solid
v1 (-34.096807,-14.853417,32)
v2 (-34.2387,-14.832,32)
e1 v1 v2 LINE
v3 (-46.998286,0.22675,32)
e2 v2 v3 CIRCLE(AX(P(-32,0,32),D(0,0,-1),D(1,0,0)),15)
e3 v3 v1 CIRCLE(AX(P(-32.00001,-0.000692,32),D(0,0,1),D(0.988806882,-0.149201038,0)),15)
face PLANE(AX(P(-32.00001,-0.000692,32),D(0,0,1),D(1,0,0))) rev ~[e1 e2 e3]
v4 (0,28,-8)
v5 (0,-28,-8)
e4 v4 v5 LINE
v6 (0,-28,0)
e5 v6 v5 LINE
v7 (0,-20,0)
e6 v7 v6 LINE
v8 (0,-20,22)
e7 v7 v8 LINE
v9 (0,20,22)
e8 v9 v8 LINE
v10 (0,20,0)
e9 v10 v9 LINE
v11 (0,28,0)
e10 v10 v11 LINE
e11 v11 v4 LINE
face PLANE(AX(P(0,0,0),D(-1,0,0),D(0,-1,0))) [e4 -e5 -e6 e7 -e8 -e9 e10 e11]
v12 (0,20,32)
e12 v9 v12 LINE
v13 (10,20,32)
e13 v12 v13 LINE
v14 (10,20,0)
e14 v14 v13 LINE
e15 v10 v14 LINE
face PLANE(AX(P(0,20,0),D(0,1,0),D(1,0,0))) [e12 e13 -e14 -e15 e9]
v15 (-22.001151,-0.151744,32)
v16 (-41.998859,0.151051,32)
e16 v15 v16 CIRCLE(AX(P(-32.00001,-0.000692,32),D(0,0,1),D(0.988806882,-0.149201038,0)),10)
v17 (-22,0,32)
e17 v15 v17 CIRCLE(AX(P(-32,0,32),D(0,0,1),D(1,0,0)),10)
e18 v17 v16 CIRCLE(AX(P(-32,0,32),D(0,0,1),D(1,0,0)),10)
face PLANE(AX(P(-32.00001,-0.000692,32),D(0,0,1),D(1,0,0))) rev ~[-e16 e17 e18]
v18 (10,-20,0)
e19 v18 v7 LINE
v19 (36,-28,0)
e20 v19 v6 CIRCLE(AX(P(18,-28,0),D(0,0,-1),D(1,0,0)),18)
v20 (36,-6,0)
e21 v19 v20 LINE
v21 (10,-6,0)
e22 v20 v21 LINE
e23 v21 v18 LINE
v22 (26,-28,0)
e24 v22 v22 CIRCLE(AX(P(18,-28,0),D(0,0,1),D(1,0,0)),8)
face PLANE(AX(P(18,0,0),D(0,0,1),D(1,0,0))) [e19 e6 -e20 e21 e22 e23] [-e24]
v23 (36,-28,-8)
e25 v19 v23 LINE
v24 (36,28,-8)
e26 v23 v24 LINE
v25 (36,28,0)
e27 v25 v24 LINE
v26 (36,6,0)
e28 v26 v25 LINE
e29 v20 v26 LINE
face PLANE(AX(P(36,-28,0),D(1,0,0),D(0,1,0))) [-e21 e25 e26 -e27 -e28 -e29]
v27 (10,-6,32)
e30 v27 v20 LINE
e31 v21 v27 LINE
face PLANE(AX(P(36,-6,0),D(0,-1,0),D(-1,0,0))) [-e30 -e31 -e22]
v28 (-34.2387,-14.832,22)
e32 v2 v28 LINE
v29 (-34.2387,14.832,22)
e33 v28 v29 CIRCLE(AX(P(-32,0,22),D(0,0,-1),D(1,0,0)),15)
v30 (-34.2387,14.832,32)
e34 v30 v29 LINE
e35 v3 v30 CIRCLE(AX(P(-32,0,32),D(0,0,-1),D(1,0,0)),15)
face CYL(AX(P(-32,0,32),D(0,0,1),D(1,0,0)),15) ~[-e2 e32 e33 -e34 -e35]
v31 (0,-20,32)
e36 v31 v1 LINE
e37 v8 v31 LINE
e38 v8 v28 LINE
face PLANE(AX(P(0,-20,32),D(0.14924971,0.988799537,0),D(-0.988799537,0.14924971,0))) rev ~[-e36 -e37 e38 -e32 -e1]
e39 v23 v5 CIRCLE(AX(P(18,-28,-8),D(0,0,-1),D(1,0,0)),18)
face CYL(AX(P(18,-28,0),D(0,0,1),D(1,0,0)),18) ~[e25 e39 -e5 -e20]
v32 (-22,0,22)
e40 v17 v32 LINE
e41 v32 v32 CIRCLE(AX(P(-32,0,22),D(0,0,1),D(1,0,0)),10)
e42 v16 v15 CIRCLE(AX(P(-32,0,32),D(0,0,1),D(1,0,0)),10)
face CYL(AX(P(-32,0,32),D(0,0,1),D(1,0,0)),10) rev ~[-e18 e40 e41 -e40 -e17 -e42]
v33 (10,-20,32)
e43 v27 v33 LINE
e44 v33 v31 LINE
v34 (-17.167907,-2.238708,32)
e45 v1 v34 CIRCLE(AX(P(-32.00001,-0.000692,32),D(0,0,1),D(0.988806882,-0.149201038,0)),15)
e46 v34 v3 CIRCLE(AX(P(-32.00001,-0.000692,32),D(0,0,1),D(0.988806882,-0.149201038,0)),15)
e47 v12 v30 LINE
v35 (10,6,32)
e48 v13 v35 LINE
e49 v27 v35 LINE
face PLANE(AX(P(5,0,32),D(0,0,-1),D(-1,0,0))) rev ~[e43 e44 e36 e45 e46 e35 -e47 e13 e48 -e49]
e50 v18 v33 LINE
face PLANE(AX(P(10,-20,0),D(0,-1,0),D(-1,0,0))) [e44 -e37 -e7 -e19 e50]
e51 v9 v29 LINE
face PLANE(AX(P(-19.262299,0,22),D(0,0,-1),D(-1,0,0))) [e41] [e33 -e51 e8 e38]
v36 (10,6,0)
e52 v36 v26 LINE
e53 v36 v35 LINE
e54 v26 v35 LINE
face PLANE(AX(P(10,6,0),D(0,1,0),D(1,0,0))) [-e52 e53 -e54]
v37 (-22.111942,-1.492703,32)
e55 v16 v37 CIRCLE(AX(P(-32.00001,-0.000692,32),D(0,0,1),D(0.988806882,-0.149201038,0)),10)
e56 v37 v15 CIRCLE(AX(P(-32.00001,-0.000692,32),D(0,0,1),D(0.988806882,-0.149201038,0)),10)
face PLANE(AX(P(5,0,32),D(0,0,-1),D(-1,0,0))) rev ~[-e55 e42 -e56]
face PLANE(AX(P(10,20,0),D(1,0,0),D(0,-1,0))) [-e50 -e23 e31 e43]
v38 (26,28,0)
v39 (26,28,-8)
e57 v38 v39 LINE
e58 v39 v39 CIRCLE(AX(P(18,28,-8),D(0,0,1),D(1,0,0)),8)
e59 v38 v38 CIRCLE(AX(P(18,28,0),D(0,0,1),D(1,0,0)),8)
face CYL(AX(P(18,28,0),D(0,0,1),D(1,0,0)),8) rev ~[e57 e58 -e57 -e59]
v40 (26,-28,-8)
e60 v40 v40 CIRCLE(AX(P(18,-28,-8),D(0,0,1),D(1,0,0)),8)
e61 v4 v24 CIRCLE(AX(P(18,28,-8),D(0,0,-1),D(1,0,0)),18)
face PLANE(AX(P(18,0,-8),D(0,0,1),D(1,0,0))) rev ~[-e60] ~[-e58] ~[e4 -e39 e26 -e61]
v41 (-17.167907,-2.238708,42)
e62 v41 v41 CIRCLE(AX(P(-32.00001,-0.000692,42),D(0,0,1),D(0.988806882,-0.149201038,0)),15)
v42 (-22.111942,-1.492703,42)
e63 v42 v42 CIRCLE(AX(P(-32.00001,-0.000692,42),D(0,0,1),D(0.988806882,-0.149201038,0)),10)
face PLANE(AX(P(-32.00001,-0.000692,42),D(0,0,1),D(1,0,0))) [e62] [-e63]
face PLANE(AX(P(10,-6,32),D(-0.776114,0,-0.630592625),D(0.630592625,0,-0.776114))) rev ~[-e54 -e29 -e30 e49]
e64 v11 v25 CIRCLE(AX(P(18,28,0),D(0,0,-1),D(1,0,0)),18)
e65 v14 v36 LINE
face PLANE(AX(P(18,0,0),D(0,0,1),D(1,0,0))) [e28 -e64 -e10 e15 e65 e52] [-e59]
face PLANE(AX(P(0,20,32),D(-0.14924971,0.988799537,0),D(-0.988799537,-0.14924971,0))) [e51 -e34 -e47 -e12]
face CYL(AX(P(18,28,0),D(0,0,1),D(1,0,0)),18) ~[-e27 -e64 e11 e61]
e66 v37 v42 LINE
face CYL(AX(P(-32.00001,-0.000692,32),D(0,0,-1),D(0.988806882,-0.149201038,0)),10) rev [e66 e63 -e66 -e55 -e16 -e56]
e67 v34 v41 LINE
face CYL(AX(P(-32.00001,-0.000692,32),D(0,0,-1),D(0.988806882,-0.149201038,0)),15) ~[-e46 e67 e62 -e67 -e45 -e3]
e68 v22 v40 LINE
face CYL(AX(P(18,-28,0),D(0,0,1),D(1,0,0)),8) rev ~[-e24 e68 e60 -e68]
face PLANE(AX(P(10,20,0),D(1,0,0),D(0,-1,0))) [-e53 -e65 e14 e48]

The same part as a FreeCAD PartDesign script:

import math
import FreeCAD as App
import Part
import Sketcher

V = App.Vector
Q = App.Units.Quantity

doc = App.newDocument("Part")
body = doc.addObject("PartDesign::Body", "Body")

# Sketch on XY plane
sketch1 = doc.addObject("Sketcher::SketchObject", "Sketch")
body.addObject(sketch1)
sketch1.AttachmentSupport = (doc.XY_Plane, [""])
sketch1.MapMode = "FlatFace"
sketch1.addGeometry([
    Part.LineSegment(V(0, 28, 0), V(0, -28, 0)),  # 0
    Part.ArcOfCircle(Part.Circle(V(18, -28, 0), V(0, 0, 1), 18), math.radians(180), math.radians(360)),  # 1
    Part.LineSegment(V(36, -28, 0), V(36, 28, 0)),  # 2
    Part.ArcOfCircle(Part.Circle(V(18, 28, 0), V(0, 0, 1), 18), math.radians(0), math.radians(180)),  # 3
    Part.Circle(V(18, -28, 0), V(0, 0, 1), 8),  # 4
    Part.Circle(V(18, 28, 0), V(0, 0, 1), 8),  # 5
], False)
sketch1.addConstraint([
    Sketcher.Constraint("Tangent", 0, 2, 1, 1),
    Sketcher.Constraint("Tangent", 1, 2, 2, 1),
    Sketcher.Constraint("Tangent", 2, 2, 3, 1),
    Sketcher.Constraint("Tangent", 3, 2, 0, 1),
    Sketcher.Constraint("Vertical", 0),
    Sketcher.Constraint("Vertical", 2),
    Sketcher.Constraint("Coincident", 4, 3, 1, 3),
    Sketcher.Constraint("Coincident", 5, 3, 3, 3),
    Sketcher.Constraint("Equal", 4, 5),
    Sketcher.Constraint("Symmetric", 0, 2, 3, 2, -1, 1),
    Sketcher.Constraint("Diameter", 4, Q("16 mm")),
    Sketcher.Constraint("Radius", 1, Q("18 mm")),
    Sketcher.Constraint("DistanceY", 0, 2, 0, 1, Q("56 mm")),
])
pad1 = doc.addObject("PartDesign::Pad", "Pad")
body.addObject(pad1)
pad1.Profile = sketch1
pad1.Length = 8
pad1.Reversed = True

# Sketch on XY plane
sketch2 = doc.addObject("Sketcher::SketchObject", "Sketch001")
body.addObject(sketch2)
sketch2.AttachmentSupport = (doc.XY_Plane, [""])
sketch2.MapMode = "FlatFace"
sketch2.addGeometry([
    Part.LineSegment(V(0, -20, 0), V(10, -20, 0)),  # 0
    Part.LineSegment(V(10, -20, 0), V(10, -6, 0)),  # 1
    Part.LineSegment(V(10, -6, 0), V(36, -6, 0)),  # 2
    Part.LineSegment(V(36, -6, 0), V(36, 6, 0)),  # 3
    Part.LineSegment(V(36, 6, 0), V(10, 6, 0)),  # 4
    Part.LineSegment(V(10, 6, 0), V(10, 20, 0)),  # 5
    Part.LineSegment(V(10, 20, 0), V(0, 20, 0)),  # 6
    Part.LineSegment(V(0, 20, 0), V(0, -20, 0)),  # 7
], False)
sketch2.addConstraint([
    Sketcher.Constraint("Coincident", 0, 2, 1, 1),
    Sketcher.Constraint("Coincident", 1, 2, 2, 1),
    Sketcher.Constraint("Coincident", 2, 2, 3, 1),
    Sketcher.Constraint("Coincident", 3, 2, 4, 1),
    Sketcher.Constraint("Coincident", 4, 2, 5, 1),
    Sketcher.Constraint("Coincident", 5, 2, 6, 1),
    Sketcher.Constraint("Coincident", 6, 2, 7, 1),
    Sketcher.Constraint("Coincident", 7, 2, 0, 1),
    Sketcher.Constraint("Horizontal", 0),
    Sketcher.Constraint("Vertical", 1),
    Sketcher.Constraint("Horizontal", 2),
    Sketcher.Constraint("Vertical", 3),
    Sketcher.Constraint("Horizontal", 4),
    Sketcher.Constraint("Vertical", 5),
    Sketcher.Constraint("Horizontal", 6),
    Sketcher.Constraint("Vertical", 7),
    Sketcher.Constraint("Symmetric", 6, 2, 7, 2, -1, 1),
    Sketcher.Constraint("Symmetric", 1, 2, 4, 2, -1),
    Sketcher.Constraint("DistanceX", 0, 1, 0, 2, Q("10 mm")),
    Sketcher.Constraint("DistanceX", 2, 1, 2, 2, Q("26 mm")),
    Sketcher.Constraint("DistanceY", 1, 1, 1, 2, Q("14 mm")),
    Sketcher.Constraint("DistanceY", 3, 1, 3, 2, Q("12 mm")),
])
pad2 = doc.addObject("PartDesign::Pad", "Pad001")
body.addObject(pad2)
pad2.Profile = sketch2
pad2.Length = 32

# Sketch on XZ plane
sketch3 = doc.addObject("Sketcher::SketchObject", "Sketch002")
body.addObject(sketch3)
sketch3.AttachmentSupport = (doc.XZ_Plane, [""])
sketch3.MapMode = "FlatFace"
sketch3.AttachmentOffset = App.Placement(V(0, 0, 6), App.Rotation())
sketch3.addGeometry([
    Part.LineSegment(V(36, 32, 0), V(10, 32, 0)),
    Part.LineSegment(V(10, 32, 0), V(36, 0, 0)),
    Part.LineSegment(V(36, 0, 0), V(36, 32, 0)),
], False)
sketch3.addConstraint([
    Sketcher.Constraint("Coincident", 0, 2, 1, 1),
    Sketcher.Constraint("Coincident", 1, 2, 2, 1),
    Sketcher.Constraint("Coincident", 2, 2, 0, 1),
    Sketcher.Constraint("Horizontal", 0),
    Sketcher.Constraint("Vertical", 2),
    Sketcher.Constraint("PointOnObject", 1, 2, -1),
    Sketcher.Constraint("DistanceX", 0, 2, 0, 1, Q("26 mm")),
    Sketcher.Constraint("DistanceY", 2, 1, 2, 2, Q("32 mm")),
    Sketcher.Constraint("DistanceX", -1, 1, 0, 2, Q("10 mm")),
])
pocket1 = doc.addObject("PartDesign::Pocket", "Pocket")
body.addObject(pocket1)
pocket1.Profile = sketch3
pocket1.Length = 96.6876

# Sketch on XY plane
sketch4 = doc.addObject("Sketcher::SketchObject", "Sketch003")
body.addObject(sketch4)
sketch4.AttachmentSupport = (doc.XY_Plane, [""])
sketch4.MapMode = "FlatFace"
sketch4.AttachmentOffset = App.Placement(V(0, 0, 32), App.Rotation())
sketch4.addGeometry([
    Part.LineSegment(V(-34, -15, 0), V(0, -20, 0)),  # 0
    Part.LineSegment(V(0, -20, 0), V(0, 20, 0)),  # 1
    Part.LineSegment(V(0, 20, 0), V(-34, 15, 0)),  # 2
    Part.ArcOfCircle(Part.Circle(V(-32, 0, 0), V(0, 0, 1), 15), math.radians(99), math.radians(261)),  # 3
    Part.Circle(V(-32, 0, 0), V(0, 0, 1), 10),  # 4
], False)
sketch4.addConstraint([
    Sketcher.Constraint("Coincident", 0, 2, 1, 1),
    Sketcher.Constraint("Coincident", 1, 2, 2, 1),
    Sketcher.Constraint("Tangent", 2, 2, 3, 1),
    Sketcher.Constraint("Tangent", 3, 2, 0, 1),
    Sketcher.Constraint("Vertical", 1),
    Sketcher.Constraint("Coincident", 4, 3, 3, 3),
    Sketcher.Constraint("Symmetric", 0, 2, 1, 2, -1, 1),
    Sketcher.Constraint("PointOnObject", 3, 3, -1),
    Sketcher.Constraint("Diameter", 4, Q("20 mm")),
    Sketcher.Constraint("Radius", 3, Q("15 mm")),
    Sketcher.Constraint("DistanceY", 1, 1, 1, 2, Q("40 mm")),
    Sketcher.Constraint("DistanceX", 3, 3, -1, 1, Q("32 mm")),
])
pad3 = doc.addObject("PartDesign::Pad", "Pad002")
body.addObject(pad3)
pad3.Profile = sketch4
pad3.Length = 10
pad3.Reversed = True

# Sketch on XY plane
sketch5 = doc.addObject("Sketcher::SketchObject", "Sketch004")
body.addObject(sketch5)
sketch5.AttachmentSupport = (doc.XY_Plane, [""])
sketch5.MapMode = "FlatFace"
sketch5.AttachmentOffset = App.Placement(V(0, 0, 32), App.Rotation())
sketch5.addGeometry([
    Part.Circle(V(-32, 0, 0), V(0, 0, 1), 15),
    Part.Circle(V(-32, 0, 0), V(0, 0, 1), 10),
], False)
sketch5.addConstraint([
    Sketcher.Constraint("Coincident", 1, 3, 0, 3),
    Sketcher.Constraint("Diameter", 0, Q("30 mm")),
    Sketcher.Constraint("Diameter", 1, Q("20 mm")),
    Sketcher.Constraint("DistanceX", 0, 3, -1, 1, Q("32 mm")),
    Sketcher.Constraint("DistanceY", 0, 3, -1, 1, Q("0.0007 mm")),
])
pad4 = doc.addObject("PartDesign::Pad", "Pad003")
body.addObject(pad4)
pad4.Profile = sketch5
pad4.Length = 10

doc.recompute()
